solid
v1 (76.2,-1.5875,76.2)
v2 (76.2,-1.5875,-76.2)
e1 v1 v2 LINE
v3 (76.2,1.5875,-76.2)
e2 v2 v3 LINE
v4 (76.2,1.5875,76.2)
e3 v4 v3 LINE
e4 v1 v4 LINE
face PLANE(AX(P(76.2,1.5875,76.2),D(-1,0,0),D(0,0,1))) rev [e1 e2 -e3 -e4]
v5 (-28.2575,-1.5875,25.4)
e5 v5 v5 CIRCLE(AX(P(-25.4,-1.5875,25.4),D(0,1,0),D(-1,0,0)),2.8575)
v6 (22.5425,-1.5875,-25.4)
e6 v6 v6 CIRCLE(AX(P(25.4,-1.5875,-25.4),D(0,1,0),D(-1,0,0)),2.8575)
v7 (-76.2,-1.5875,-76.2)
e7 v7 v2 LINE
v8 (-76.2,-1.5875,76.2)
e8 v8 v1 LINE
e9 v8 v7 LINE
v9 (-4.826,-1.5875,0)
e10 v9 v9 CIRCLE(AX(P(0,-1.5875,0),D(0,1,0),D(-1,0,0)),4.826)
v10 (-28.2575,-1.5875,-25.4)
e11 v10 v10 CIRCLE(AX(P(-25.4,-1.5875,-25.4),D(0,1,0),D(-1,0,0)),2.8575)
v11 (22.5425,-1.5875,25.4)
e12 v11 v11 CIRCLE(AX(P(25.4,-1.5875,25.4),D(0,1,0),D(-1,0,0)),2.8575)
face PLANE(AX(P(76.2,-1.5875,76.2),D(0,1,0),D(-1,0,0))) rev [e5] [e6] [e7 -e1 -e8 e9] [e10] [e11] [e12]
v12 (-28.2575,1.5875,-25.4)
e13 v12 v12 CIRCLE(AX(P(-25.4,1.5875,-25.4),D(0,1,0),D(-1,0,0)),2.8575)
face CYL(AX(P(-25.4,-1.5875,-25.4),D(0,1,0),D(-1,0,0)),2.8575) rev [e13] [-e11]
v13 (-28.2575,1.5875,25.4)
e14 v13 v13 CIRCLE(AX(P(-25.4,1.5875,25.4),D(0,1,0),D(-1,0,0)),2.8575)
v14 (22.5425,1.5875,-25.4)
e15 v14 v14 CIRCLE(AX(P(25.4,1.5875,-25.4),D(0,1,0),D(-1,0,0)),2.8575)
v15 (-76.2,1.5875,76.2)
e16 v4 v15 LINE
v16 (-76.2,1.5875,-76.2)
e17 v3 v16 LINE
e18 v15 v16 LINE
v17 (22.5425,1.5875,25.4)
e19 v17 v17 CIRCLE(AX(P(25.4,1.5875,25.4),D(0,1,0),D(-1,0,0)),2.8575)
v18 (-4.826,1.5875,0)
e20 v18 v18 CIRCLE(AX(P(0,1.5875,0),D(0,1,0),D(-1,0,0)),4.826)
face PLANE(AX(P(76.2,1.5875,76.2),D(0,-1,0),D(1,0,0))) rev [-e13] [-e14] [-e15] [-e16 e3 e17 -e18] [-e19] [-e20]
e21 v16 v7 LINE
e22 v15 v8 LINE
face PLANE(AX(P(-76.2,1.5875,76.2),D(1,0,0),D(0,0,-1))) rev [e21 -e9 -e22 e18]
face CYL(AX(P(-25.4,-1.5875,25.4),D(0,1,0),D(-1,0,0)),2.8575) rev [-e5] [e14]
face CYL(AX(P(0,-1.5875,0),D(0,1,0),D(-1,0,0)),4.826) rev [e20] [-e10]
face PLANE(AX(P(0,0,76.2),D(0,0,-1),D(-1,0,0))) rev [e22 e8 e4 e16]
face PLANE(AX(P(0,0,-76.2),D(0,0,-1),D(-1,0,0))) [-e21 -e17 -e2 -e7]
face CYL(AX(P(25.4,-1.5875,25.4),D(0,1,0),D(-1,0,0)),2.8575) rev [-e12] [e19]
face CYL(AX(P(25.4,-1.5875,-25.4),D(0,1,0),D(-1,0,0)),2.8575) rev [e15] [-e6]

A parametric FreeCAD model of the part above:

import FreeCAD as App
import Part
import Sketcher
from FreeCAD import Vector
Q = App.Units.Quantity


def add_polygon(sketch, points):
    """Adds a closed chain of lines whose ends are joined by coincident constraints."""
    first, n = sketch.GeometryCount, len(points)
    for a, b in zip(points, points[1:] + points[:1]):
        sketch.addGeometry(Part.LineSegment(App.Vector(*a, 0), App.Vector(*b, 0)), False)
    for i in range(n):
        sketch.addConstraint(Sketcher.Constraint("Coincident", first + i, 2, first + (i + 1) % n, 1))

doc = App.newDocument("Part")
body = doc.addObject("PartDesign::Body", "Body")

sketch1 = body.newObject("Sketcher::SketchObject", "Sketch")
sketch1.AttachmentSupport = (doc.getObject("XY_Plane"), [""])
sketch1.MapMode = "FlatFace"
add_polygon(sketch1, [(-76.2, 1.5875), (-76.2, -1.5875), (76.2, -1.5875), (76.2, 1.5875)])
sketch1.addConstraint([
    Sketcher.Constraint("Vertical", 0),
    Sketcher.Constraint("Horizontal", 1),
    Sketcher.Constraint("Vertical", 2),
    Sketcher.Constraint("Horizontal", 3),
    Sketcher.Constraint("Symmetric", 0, 2, 2, 2, -1, 1),
    Sketcher.Constraint("DistanceX", 1, 1, 1, 2, Q("6 in")),
    Sketcher.Constraint("DistanceY", 0, 2, 0, 1, Q("0.125 in")),
])
pad1 = body.newObject("PartDesign::Pad", "Pad")
pad1.Profile = sketch1
pad1.Length = Q("6 in")
pad1.Midplane = True

sketch2 = body.newObject("Sketcher::SketchObject", "Sketch001")
sketch2.AttachmentSupport = (doc.getObject("XZ_Plane"), [""])
sketch2.MapMode = "FlatFace"
sketch2.AttachmentOffset = App.Placement(Vector(0, 0, -0.0625 * 25.4), App.Rotation())
sketch2.addGeometry([
    Part.Circle(Vector(-25.4, -25.4, 0), Vector(0, 0, 1), 2.8575),
    Part.Circle(Vector(25.4, -25.4, 0), Vector(0, 0, 1), 2.8575),
    Part.Circle(Vector(25.4, 25.4, 0), Vector(0, 0, 1), 2.8575),
    Part.Circle(Vector(-25.4, 25.4, 0), Vector(0, 0, 1), 2.8575),
    Part.Circle(Vector(0, 0, 0), Vector(0, 0, 1), 4.826),
], False)
sketch2.addConstraint([
    Sketcher.Constraint("Coincident", 4, 3, -1, 1),
    Sketcher.Constraint("Equal", 0, 1),
    Sketcher.Constraint("Equal", 1, 2),
    Sketcher.Constraint("Equal", 2, 3),
    Sketcher.Constraint("Symmetric", 0, 3, 2, 3, -1, 1),
    Sketcher.Constraint("Symmetric", 1, 3, 3, 3, -1, 1),
    Sketcher.Constraint("Symmetric", 0, 3, 1, 3, -2),
    Sketcher.Constraint("Diameter", 4, Q("0.38 in")),
    Sketcher.Constraint("Diameter", 0, Q("0.225 in")),
    Sketcher.Constraint("DistanceX", 0, 3, -1, 1, Q("1 in")),
    Sketcher.Constraint("DistanceY", 0, 3, -1, 1, Q("1 in")),
])
pocket1 = body.newObject("PartDesign::Pocket", "Pocket")
pocket1.Profile = sketch2
pocket1.Type = "ThroughAll"
pocket1.Reversed = True

doc.recompute()
